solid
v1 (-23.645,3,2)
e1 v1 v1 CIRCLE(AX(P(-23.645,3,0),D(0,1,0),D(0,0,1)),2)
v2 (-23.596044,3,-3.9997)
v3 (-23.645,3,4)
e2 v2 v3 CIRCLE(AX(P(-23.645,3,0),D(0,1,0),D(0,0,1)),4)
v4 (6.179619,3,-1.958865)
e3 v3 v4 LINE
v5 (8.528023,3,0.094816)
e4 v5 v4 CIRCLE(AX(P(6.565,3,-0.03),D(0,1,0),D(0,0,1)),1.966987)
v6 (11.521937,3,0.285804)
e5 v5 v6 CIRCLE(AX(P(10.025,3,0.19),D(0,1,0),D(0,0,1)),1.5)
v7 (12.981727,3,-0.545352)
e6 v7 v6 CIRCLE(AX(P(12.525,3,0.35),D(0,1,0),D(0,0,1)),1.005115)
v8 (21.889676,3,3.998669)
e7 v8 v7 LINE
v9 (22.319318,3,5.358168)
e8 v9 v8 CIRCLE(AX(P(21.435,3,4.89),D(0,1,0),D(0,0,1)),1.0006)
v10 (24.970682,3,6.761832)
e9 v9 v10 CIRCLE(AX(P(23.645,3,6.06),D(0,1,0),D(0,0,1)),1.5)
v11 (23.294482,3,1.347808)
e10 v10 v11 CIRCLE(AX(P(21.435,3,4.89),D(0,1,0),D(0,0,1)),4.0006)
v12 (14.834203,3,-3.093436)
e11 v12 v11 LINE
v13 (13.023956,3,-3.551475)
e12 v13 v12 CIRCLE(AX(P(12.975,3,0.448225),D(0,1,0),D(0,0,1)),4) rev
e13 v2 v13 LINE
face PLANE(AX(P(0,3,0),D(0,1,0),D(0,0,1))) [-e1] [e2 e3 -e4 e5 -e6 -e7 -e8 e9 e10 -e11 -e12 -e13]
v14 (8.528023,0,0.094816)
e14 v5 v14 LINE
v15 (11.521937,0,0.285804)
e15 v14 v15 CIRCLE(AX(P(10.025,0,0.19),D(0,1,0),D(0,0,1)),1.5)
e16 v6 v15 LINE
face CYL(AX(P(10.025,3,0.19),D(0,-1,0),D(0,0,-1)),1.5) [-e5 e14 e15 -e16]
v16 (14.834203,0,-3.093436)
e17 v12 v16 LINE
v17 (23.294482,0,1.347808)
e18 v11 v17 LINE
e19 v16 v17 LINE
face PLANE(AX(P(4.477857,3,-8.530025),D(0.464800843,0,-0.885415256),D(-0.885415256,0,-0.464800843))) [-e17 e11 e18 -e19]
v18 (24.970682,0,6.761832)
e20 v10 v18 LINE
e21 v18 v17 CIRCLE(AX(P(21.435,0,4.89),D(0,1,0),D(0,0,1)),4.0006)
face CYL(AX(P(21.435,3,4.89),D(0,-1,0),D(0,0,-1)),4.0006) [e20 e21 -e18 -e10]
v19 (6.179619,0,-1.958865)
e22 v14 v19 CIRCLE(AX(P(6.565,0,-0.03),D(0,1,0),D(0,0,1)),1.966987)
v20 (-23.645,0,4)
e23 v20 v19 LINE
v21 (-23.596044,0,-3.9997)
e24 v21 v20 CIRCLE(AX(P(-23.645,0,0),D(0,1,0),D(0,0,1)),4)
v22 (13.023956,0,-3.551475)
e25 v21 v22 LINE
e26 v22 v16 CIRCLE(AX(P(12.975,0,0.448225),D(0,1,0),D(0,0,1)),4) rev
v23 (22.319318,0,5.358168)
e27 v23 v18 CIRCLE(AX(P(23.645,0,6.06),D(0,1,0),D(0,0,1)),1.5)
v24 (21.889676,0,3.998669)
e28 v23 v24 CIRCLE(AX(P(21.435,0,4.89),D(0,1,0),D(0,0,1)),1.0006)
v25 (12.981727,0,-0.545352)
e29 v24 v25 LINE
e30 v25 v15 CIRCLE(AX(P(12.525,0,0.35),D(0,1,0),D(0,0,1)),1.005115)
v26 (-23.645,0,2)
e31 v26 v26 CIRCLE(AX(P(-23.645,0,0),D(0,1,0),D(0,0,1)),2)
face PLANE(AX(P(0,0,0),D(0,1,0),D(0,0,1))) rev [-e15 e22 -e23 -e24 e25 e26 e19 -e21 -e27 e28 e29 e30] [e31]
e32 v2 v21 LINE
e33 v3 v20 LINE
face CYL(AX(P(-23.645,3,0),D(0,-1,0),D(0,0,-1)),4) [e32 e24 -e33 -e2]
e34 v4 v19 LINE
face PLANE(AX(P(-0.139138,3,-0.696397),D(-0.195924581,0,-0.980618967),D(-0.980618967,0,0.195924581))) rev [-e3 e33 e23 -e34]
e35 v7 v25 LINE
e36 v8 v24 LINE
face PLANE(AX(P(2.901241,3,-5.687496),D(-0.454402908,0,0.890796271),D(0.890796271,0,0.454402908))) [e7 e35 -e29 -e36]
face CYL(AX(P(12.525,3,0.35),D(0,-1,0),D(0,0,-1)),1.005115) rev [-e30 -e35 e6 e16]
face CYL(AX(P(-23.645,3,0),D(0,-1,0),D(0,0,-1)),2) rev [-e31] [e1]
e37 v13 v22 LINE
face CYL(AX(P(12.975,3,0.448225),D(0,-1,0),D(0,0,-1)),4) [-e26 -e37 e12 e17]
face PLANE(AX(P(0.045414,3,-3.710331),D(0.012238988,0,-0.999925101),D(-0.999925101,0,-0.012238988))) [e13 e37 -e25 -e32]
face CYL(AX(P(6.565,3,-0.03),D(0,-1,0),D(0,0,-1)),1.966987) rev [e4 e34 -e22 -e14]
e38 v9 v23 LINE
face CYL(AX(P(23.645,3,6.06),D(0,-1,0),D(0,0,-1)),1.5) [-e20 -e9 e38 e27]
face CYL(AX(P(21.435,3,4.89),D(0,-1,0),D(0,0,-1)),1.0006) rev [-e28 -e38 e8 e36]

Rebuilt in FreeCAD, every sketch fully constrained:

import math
import FreeCAD as App
import Part
import Sketcher

V = App.Vector
Q = App.Units.Quantity

doc = App.newDocument("Part")
params = doc.addObject("Spreadsheet::Sheet", "Params")
for row, (alias, value) in enumerate([
    ("sketch1_diameter", "4 mm"),
    ("sketch1_radius", "4 mm"),
    ("sketch1_radius2", "1.5 mm"),
    ("pad1_length", "3 mm"),
], start=1):
    params.set(f"A{row}", alias)
    params.set(f"B{row}", "=" + value)
    params.setAlias(f"B{row}", alias)

body = doc.addObject("PartDesign::Body", "Body")

sketch1 = body.newObject("Sketcher::SketchObject", "Sketch")
sketch1.AttachmentSupport = (doc.getObject("XZ_Plane"), [""])
sketch1.MapMode = "FlatFace"
sketch1.addGeometry(Part.LineSegment(V(13, -3.6, 0), V(-23.6, -4, 0)), False)
sketch1.addGeometry(Part.ArcOfCircle(Part.Circle(V(-23.6, 0, 0), V(0, 0, 1), 4), math.radians(90), math.radians(271)), False)
sketch1.addGeometry(Part.LineSegment(V(-23.6, 4, 0), V(6.2, -2, 0)), False)
sketch1.addGeometry(Part.ArcOfCircle(Part.Circle(V(6.6, 0, 0), V(0, 0, 1), 2), math.radians(-101), math.radians(4)), False)
sketch1.addGeometry(Part.ArcOfCircle(Part.Circle(V(10, 0.2, 0), V(0, 0, 1), 1.5), math.radians(4), math.radians(184)), False)
sketch1.addGeometry(Part.ArcOfCircle(Part.Circle(V(12.5, 0.4, 0), V(0, 0, 1), 1), math.radians(-176), math.radians(-63)), False)
sketch1.addGeometry(Part.LineSegment(V(13, -0.5, 0), V(21.9, 4, 0)), False)
sketch1.addGeometry(Part.ArcOfCircle(Part.Circle(V(21.4, 4.9, 0), V(0, 0, 1), 1), math.radians(-63), math.radians(28)), False)
sketch1.addGeometry(Part.ArcOfCircle(Part.Circle(V(23.6, 6.1, 0), V(0, 0, 1), 1.5), math.radians(28), math.radians(208)), False)
sketch1.addGeometry(Part.ArcOfCircle(Part.Circle(V(21.4, 4.9, 0), V(0, 0, 1), 4), math.radians(-62), math.radians(28)), False)
sketch1.addGeometry(Part.LineSegment(V(23.3, 1.3, 0), V(14.8, -3.1, 0)), False)
sketch1.addGeometry(Part.ArcOfCircle(Part.Circle(V(13, 0.4, 0), V(0, 0, 1), 4), math.radians(-89), math.radians(-62)), False)
sketch1.addGeometry(Part.Circle(V(-23.6, 0, 0), V(0, 0, 1), 2), False)
sketch1.addConstraint(Sketcher.Constraint("Tangent", 0, 2, 1, 2))
sketch1.addConstraint(Sketcher.Constraint("Coincident", 1, 1, 2, 1))
sketch1.addConstraint(Sketcher.Constraint("Tangent", 2, 2, 3, 1))
sketch1.addConstraint(Sketcher.Constraint("Tangent", 3, 2, 4, 2))
sketch1.addConstraint(Sketcher.Constraint("Tangent", 4, 1, 5, 1))
sketch1.addConstraint(Sketcher.Constraint("Tangent", 5, 2, 6, 1))
sketch1.addConstraint(Sketcher.Constraint("Tangent", 6, 2, 7, 1))
sketch1.addConstraint(Sketcher.Constraint("Tangent", 7, 2, 8, 2))
sketch1.addConstraint(Sketcher.Constraint("Tangent", 8, 1, 9, 2))
sketch1.addConstraint(Sketcher.Constraint("Tangent", 9, 1, 10, 1))
sketch1.addConstraint(Sketcher.Constraint("Tangent", 10, 2, 11, 2))
sketch1.addConstraint(Sketcher.Constraint("Tangent", 11, 1, 0, 1))
sketch1.addConstraint(Sketcher.Constraint("Coincident", 9, 3, 7, 3))
sketch1.addConstraint(Sketcher.Constraint("Coincident", 12, 3, 1, 3))
sketch1.addConstraint(Sketcher.Constraint("Equal", 4, 8))
sketch1.addConstraint(Sketcher.Constraint("Equal", 1, 11))
sketch1.addConstraint(Sketcher.Constraint("PointOnObject", 1, 3, -1))
sketch1.addConstraint(Sketcher.Constraint("Vertical", 12, 3, 1, 1))
sketch1.addConstraint(Sketcher.Constraint("Diameter", 12, Q("4 mm")))
sketch1.addConstraint(Sketcher.Constraint("Radius", 1, Q("4 mm")))
sketch1.addConstraint(Sketcher.Constraint("Radius", 4, Q("1.5 mm")))
sketch1.addConstraint(Sketcher.Constraint("Radius", 7, Q("1.0006 mm")))
sketch1.addConstraint(Sketcher.Constraint("DistanceX", 4, 3, 5, 3, Q("2.5 mm")))
sketch1.addConstraint(Sketcher.Constraint("DistanceY", 4, 3, 7, 3, Q("4.7 mm")))
sketch1.addConstraint(Sketcher.Constraint("DistanceY", 3, 3, -1, 1, Q("0.03 mm")))
sketch1.addConstraint(Sketcher.Constraint("DistanceY", -1, 1, 4, 3, Q("0.19 mm")))
sketch1.addConstraint(Sketcher.Constraint("DistanceY", -1, 1, 5, 3, Q("0.35 mm")))
sketch1.addConstraint(Sketcher.Constraint("DistanceY", -1, 1, 8, 3, Q("6.06 mm")))
sketch1.addConstraint(Sketcher.Constraint("DistanceX", 1, 3, 3, 3, Q("30.21 mm")))
sketch1.addConstraint(Sketcher.Constraint("DistanceX", 3, 3, 4, 3, Q("3.46 mm")))
sketch1.addConstraint(Sketcher.Constraint("DistanceX", 5, 3, 7, 3, Q("8.91 mm")))
sketch1.addConstraint(Sketcher.Constraint("DistanceX", 5, 3, 11, 3, Q("0.45 mm")))
sketch1.addConstraint(Sketcher.Constraint("DistanceX", 1, 3, -1, 1, Q("23.645 mm")))
sketch1.addConstraint(Sketcher.Constraint("DistanceY", 2, 2, 11, 3, Q("2.40709 mm")))
sketch1.setExpression("Constraints[18]", "Params.sketch1_diameter")
sketch1.setExpression("Constraints[19]", "Params.sketch1_radius")
sketch1.setExpression("Constraints[20]", "Params.sketch1_radius2")
pad1 = body.newObject("PartDesign::Pad", "Pad")
pad1.Profile = sketch1
pad1.setExpression("Length", "Params.pad1_length")
pad1.Reversed = True

doc.recompute()
